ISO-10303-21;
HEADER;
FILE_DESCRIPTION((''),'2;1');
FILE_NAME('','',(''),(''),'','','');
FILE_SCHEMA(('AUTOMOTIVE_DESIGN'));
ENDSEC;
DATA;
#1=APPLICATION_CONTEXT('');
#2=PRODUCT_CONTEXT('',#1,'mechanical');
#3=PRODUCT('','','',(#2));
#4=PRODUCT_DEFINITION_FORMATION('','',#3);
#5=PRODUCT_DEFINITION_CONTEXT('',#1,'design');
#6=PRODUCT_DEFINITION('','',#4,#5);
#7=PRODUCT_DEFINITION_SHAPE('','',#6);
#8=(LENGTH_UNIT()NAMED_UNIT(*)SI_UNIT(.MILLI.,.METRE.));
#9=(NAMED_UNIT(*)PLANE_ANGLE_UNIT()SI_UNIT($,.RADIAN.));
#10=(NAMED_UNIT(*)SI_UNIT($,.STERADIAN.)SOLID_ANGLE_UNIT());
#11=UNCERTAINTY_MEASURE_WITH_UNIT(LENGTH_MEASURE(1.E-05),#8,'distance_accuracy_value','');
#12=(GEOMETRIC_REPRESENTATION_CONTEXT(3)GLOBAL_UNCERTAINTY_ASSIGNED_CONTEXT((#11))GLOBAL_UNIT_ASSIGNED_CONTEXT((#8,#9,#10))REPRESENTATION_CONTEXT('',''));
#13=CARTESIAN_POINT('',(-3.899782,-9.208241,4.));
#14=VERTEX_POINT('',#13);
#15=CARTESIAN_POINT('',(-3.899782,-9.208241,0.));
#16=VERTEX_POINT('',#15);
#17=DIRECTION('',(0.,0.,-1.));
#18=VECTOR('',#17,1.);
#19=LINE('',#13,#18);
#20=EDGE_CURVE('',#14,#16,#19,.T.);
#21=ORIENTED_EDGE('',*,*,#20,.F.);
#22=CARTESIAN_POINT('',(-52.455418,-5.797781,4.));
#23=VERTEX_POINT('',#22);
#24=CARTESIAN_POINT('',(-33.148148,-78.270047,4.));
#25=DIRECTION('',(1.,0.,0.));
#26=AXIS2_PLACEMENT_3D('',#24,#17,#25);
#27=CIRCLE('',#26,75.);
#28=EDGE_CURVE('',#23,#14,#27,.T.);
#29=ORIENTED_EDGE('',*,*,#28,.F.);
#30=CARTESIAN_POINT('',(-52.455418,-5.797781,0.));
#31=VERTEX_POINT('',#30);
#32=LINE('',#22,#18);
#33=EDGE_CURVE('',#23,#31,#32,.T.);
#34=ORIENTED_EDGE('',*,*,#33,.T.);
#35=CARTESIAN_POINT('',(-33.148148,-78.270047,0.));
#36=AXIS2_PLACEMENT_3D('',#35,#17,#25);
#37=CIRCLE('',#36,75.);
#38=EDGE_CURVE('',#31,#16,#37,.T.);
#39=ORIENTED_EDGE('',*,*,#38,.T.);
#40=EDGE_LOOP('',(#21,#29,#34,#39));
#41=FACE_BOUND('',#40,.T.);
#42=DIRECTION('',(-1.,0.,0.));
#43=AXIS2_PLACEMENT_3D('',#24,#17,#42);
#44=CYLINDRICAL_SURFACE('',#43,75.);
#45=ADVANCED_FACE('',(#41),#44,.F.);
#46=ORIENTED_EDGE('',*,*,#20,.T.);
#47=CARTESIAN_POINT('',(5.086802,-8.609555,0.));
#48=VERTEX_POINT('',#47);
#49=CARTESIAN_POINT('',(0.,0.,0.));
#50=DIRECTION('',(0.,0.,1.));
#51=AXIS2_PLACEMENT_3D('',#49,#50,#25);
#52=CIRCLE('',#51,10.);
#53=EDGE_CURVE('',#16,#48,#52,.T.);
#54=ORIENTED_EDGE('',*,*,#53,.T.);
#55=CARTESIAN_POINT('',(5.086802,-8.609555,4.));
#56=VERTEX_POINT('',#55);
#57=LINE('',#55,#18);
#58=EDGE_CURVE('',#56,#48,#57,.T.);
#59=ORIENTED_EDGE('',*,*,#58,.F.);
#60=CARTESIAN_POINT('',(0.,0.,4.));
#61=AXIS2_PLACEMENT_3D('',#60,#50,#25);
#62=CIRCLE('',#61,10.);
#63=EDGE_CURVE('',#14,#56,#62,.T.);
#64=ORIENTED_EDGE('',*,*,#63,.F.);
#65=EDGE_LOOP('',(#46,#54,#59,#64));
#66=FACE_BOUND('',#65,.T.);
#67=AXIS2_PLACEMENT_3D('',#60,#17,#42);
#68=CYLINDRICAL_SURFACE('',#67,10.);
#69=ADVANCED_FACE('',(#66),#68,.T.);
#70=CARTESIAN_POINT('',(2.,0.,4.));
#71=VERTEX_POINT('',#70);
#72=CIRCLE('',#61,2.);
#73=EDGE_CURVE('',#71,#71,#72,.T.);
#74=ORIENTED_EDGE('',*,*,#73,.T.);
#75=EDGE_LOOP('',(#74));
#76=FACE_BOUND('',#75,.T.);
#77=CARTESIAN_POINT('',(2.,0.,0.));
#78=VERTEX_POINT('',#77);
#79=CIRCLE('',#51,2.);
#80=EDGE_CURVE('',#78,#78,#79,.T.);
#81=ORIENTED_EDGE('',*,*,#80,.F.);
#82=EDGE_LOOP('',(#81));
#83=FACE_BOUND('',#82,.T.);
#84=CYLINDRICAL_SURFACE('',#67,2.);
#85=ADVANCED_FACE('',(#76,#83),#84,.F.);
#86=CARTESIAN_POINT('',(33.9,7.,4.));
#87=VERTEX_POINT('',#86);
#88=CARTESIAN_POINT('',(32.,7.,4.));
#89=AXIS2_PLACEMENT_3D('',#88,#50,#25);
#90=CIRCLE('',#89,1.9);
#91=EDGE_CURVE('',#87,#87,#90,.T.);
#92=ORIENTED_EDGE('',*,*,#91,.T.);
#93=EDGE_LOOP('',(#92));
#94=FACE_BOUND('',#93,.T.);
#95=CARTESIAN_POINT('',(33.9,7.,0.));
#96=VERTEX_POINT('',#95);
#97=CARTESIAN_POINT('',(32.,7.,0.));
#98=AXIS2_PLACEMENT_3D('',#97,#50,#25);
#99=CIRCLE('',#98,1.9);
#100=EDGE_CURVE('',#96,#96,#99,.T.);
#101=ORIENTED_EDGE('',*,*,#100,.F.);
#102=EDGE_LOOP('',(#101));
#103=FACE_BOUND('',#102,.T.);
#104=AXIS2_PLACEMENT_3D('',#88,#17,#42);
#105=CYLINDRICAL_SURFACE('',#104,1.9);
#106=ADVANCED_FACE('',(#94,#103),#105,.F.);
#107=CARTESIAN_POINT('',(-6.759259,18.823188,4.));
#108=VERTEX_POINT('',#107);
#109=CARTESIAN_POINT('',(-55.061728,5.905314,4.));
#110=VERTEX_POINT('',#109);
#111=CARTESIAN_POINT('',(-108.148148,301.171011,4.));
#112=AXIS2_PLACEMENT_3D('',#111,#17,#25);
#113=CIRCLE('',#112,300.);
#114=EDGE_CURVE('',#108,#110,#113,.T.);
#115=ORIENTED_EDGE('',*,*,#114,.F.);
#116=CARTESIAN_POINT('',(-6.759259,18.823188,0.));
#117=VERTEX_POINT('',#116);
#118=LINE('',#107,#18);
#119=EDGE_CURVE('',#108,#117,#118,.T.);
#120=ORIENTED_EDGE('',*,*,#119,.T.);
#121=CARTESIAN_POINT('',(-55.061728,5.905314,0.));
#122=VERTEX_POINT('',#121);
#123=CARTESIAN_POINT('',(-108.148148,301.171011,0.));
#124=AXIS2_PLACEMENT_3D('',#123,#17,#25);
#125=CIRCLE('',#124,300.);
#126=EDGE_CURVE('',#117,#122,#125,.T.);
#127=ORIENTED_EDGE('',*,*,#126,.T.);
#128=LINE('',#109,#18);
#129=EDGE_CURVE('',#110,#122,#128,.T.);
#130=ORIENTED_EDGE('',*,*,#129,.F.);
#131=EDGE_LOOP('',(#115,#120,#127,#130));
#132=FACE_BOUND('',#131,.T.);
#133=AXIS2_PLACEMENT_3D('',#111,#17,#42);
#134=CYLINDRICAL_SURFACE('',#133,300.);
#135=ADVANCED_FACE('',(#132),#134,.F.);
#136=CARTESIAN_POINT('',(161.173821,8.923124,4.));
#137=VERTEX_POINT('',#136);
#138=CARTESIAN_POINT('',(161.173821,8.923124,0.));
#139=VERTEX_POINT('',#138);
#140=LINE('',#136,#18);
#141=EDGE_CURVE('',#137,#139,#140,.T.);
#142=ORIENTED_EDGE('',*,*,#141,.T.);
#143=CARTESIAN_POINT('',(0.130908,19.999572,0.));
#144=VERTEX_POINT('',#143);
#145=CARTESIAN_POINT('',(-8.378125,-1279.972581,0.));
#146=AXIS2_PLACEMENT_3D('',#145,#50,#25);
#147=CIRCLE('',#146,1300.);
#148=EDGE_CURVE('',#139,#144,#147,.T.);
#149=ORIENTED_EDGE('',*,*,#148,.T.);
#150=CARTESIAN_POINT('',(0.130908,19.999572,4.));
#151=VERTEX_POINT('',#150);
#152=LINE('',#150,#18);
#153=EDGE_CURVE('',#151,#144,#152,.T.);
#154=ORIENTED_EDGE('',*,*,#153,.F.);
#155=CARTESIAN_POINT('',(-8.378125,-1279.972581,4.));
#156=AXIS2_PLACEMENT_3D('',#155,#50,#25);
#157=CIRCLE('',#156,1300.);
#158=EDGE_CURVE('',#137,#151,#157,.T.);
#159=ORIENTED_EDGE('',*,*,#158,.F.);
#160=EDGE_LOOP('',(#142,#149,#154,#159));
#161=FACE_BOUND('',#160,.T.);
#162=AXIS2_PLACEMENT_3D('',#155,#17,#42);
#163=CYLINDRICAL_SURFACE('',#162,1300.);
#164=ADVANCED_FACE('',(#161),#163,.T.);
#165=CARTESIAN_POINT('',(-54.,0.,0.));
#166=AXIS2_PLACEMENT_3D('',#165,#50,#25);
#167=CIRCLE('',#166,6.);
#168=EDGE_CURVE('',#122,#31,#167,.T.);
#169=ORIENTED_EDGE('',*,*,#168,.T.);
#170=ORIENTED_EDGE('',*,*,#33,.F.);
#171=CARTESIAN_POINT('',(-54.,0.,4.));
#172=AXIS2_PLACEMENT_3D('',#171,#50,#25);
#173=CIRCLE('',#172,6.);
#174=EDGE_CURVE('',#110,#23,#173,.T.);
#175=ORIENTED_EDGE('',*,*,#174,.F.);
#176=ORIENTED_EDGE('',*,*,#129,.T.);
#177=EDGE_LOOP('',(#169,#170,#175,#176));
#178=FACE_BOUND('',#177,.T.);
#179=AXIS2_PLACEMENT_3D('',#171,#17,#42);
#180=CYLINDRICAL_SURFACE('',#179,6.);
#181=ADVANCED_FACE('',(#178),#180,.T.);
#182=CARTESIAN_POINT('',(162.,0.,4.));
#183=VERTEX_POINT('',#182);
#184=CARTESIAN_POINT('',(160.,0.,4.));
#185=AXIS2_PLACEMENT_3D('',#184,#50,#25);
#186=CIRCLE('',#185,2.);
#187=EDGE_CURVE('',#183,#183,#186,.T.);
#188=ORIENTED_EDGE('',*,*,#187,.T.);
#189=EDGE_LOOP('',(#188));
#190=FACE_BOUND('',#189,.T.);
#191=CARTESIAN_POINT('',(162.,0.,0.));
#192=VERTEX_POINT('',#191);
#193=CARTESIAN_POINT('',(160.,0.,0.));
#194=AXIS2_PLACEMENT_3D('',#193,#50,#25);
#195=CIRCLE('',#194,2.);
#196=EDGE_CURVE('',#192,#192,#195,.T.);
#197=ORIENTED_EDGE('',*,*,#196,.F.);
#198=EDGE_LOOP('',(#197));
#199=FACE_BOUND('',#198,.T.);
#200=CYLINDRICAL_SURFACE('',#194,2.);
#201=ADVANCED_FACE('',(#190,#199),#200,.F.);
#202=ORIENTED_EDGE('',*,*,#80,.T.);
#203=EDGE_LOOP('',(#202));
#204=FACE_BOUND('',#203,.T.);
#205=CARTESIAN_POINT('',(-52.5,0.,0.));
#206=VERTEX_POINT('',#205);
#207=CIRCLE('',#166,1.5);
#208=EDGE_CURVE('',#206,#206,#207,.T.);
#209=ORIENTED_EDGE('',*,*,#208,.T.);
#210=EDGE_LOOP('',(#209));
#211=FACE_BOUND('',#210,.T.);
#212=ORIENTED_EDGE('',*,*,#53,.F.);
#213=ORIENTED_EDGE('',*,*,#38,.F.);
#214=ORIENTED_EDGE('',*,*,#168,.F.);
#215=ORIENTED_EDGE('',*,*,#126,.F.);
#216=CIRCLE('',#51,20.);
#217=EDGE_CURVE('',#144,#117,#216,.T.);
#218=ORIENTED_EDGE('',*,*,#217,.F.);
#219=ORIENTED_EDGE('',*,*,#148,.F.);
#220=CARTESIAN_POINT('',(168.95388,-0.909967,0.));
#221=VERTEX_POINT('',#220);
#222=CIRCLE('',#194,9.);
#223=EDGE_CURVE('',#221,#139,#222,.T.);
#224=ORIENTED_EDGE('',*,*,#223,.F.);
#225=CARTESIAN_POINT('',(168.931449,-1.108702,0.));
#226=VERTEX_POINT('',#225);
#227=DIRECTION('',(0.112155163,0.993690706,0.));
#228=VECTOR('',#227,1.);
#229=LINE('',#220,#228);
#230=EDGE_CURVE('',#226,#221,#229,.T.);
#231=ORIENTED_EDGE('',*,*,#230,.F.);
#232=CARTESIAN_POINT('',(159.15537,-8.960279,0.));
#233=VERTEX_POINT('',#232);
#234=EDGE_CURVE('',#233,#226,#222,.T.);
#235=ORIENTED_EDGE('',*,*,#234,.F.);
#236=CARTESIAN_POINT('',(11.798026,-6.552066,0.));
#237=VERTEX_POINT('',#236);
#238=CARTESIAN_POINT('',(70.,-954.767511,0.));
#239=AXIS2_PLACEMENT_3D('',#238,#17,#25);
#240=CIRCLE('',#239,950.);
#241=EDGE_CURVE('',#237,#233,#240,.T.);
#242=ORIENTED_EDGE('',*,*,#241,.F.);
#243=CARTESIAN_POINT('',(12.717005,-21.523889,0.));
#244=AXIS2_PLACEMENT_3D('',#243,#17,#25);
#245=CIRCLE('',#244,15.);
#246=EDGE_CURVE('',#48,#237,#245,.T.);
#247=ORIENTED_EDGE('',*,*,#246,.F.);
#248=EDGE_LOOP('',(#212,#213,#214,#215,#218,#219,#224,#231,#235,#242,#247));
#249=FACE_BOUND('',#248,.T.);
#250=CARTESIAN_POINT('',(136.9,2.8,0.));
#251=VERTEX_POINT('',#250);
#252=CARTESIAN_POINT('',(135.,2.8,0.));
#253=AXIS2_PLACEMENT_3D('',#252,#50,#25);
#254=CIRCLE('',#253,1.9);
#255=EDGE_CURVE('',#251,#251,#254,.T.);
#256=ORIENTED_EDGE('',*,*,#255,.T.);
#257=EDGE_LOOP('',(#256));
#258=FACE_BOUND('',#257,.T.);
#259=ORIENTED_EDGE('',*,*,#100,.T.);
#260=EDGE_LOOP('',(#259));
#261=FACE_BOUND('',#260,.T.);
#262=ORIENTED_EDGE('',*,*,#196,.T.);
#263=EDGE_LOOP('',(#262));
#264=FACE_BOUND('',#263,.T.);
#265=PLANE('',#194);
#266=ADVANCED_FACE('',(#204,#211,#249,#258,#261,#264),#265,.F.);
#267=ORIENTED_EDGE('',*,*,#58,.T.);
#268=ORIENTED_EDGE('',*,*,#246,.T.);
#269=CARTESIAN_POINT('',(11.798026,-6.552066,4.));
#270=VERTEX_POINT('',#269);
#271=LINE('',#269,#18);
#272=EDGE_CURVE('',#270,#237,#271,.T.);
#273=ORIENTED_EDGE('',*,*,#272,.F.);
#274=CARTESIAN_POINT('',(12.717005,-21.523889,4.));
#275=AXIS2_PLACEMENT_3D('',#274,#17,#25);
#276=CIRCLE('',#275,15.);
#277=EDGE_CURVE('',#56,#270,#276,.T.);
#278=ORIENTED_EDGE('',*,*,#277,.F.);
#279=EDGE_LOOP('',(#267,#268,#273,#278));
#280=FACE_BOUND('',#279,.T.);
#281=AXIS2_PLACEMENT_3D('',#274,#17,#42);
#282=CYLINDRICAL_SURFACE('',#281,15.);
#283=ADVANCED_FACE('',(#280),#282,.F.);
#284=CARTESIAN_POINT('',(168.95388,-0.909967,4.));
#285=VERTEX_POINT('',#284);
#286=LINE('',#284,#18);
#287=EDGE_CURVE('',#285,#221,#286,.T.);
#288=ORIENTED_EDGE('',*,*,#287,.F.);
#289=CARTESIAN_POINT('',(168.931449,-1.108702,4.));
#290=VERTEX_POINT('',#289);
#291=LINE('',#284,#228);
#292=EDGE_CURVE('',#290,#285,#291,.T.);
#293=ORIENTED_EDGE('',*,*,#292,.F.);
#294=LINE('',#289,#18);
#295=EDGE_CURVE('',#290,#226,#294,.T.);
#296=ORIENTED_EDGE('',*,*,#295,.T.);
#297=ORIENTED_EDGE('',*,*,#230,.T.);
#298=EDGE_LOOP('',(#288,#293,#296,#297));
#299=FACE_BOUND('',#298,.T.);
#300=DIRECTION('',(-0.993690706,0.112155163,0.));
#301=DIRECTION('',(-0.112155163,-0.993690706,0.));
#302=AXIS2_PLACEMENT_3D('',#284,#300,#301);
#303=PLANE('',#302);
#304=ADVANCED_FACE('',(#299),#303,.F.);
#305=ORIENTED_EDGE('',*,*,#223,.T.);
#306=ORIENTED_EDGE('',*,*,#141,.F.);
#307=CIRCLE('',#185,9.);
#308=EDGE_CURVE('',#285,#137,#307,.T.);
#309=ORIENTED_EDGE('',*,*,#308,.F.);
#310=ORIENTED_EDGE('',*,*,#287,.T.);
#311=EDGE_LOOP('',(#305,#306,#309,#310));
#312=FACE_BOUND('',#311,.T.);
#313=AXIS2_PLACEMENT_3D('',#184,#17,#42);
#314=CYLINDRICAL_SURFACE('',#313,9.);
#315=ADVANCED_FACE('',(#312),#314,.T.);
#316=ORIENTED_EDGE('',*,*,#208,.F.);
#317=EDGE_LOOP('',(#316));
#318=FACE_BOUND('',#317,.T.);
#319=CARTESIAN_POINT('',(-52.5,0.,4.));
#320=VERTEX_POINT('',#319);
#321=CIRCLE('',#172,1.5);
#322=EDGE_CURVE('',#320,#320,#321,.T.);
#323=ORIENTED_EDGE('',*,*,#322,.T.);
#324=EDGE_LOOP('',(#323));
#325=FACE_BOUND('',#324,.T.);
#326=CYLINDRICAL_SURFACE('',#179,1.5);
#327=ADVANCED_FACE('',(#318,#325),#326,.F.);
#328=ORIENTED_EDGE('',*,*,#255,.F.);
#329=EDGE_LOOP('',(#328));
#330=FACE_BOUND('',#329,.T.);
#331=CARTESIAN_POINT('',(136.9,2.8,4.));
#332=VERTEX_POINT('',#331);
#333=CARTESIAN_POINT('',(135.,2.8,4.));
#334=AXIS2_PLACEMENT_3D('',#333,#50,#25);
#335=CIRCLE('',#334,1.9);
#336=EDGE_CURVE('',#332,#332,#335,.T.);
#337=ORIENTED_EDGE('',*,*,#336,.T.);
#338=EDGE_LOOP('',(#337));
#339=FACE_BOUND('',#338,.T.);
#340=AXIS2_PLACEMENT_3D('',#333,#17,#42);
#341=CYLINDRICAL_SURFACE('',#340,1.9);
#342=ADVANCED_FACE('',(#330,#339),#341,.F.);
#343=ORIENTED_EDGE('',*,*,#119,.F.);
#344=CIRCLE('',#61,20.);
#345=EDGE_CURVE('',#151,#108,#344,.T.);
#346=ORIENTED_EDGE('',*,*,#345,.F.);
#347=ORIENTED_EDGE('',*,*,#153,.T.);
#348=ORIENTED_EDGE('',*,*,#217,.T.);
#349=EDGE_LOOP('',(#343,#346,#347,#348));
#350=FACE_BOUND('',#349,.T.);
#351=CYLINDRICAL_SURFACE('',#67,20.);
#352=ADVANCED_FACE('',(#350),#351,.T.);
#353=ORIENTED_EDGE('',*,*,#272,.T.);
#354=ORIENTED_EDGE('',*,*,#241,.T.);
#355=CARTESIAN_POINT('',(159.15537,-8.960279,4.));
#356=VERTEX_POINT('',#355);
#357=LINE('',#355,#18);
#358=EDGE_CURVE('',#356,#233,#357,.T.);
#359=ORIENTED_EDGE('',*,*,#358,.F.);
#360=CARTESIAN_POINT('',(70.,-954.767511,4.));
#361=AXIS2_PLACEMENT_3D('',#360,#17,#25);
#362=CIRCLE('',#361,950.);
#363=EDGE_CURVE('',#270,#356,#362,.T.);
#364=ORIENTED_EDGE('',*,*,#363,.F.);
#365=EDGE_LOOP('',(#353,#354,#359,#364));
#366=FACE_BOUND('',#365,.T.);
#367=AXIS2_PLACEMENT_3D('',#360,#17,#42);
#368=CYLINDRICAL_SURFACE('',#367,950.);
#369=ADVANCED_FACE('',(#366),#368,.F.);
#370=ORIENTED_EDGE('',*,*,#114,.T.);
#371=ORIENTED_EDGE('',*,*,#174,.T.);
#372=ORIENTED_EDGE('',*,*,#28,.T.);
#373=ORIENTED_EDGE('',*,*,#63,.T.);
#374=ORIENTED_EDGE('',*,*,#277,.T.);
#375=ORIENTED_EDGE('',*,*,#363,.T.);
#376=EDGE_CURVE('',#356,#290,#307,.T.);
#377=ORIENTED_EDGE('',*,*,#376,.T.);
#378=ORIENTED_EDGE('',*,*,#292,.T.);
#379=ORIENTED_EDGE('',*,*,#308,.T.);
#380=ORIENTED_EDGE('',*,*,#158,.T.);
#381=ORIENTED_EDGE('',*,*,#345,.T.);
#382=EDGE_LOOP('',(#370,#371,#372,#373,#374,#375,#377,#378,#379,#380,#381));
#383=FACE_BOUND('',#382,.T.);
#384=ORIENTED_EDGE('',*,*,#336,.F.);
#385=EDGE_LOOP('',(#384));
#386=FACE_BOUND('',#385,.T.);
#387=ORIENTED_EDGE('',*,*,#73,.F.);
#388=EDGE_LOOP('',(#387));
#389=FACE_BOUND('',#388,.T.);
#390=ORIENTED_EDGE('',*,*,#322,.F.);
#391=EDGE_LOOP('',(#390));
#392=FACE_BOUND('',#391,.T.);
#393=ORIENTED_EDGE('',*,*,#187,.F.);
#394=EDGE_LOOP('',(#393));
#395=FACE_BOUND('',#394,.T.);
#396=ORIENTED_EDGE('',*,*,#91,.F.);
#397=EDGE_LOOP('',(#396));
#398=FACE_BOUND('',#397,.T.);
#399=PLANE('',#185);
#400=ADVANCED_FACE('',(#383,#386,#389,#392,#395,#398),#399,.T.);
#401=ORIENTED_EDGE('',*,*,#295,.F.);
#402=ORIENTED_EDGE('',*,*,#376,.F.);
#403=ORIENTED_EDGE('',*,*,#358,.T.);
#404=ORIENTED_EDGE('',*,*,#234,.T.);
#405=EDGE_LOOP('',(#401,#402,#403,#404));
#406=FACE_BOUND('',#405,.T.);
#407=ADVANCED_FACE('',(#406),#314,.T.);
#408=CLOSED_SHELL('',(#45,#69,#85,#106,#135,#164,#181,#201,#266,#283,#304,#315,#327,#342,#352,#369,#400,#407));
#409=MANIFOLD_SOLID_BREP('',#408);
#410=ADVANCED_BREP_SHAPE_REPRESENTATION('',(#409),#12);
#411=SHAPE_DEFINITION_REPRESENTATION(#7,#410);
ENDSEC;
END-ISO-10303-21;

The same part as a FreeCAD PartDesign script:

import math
import FreeCAD as App
import Part
import Sketcher
Q = App.Units.Quantity

doc = App.newDocument("Part")
body = doc.addObject("PartDesign::Body", "Body")

# Sketch on XY plane
sketch1 = doc.addObject("Sketcher::SketchObject", "Sketch")
body.addObject(sketch1)
sketch1.AttachmentSupport = (doc.XY_Plane, [""])
sketch1.MapMode = "FlatFace"
sketch1.addGeometry(Part.LineSegment(App.Vector(168.931449, -1.108702, 0), App.Vector(168.95388, -0.909967, 0)), False)
sketch1.addGeometry(Part.ArcOfCircle(Part.Circle(App.Vector(160, 0, 0), App.Vector(0, 0, 1), 9), math.radians(-5.802943), math.radians(82.505872)), False)
sketch1.addGeometry(Part.ArcOfCircle(Part.Circle(App.Vector(-8.378125, -1279.97258, 0), App.Vector(0, 0, 1), 1300), math.radians(82.505872), math.radians(89.624973)), False)
sketch1.addGeometry(Part.ArcOfCircle(Part.Circle(App.Vector(0, 0, 0), App.Vector(0, 0, 1), 20), math.radians(89.624973), math.radians(109.752815)), False)
sketch1.addGeometry(Part.ArcOfCircle(Part.Circle(App.Vector(-108.148148, 301.171011, 0), App.Vector(0, 0, 1), 300), math.radians(-79.807568), math.radians(-70.247185)), False)
sketch1.addGeometry(Part.ArcOfCircle(Part.Circle(App.Vector(-54, 0, 0), App.Vector(0, 0, 1), 6), math.radians(100.192432), math.radians(284.917638)), False)
sketch1.addGeometry(Part.ArcOfCircle(Part.Circle(App.Vector(-33.148148, -78.270047, 0), App.Vector(0, 0, 1), 75), math.radians(67.046856), math.radians(104.917638)), False)
sketch1.addGeometry(Part.ArcOfCircle(Part.Circle(App.Vector(0, 0, 0), App.Vector(0, 0, 1), 10), math.radians(-112.953144), math.radians(-59.424042)), False)
sketch1.addGeometry(Part.ArcOfCircle(Part.Circle(App.Vector(12.717005, -21.523889, 0), App.Vector(0, 0, 1), 15), math.radians(93.512439), math.radians(120.575958)), False)
sketch1.addGeometry(Part.ArcOfCircle(Part.Circle(App.Vector(70, -954.767511, 0), App.Vector(0, 0, 1), 950), math.radians(84.614995), math.radians(93.512439)), False)
sketch1.addGeometry(Part.ArcOfCircle(Part.Circle(App.Vector(160, 0, 0), App.Vector(0, 0, 1), 9), math.radians(-95.385005), math.radians(-7.076189)), False)
sketch1.addGeometry(Part.Circle(App.Vector(160, 0, 0), App.Vector(0, 0, 1), 1.5), False)
sketch1.addGeometry(Part.Circle(App.Vector(135, 2.8, 0), App.Vector(0, 0, 1), 1.9), False)
sketch1.addGeometry(Part.Circle(App.Vector(0, 0, 0), App.Vector(0, 0, 1), 2), False)
sketch1.addGeometry(Part.Circle(App.Vector(-54, 0, 0), App.Vector(0, 0, 1), 1.5), False)
sketch1.addGeometry(Part.Circle(App.Vector(32, 7, 0), App.Vector(0, 0, 1), 1.9), False)
sketch1.addConstraint(Sketcher.Constraint("Coincident", 0, 2, 1, 1))
sketch1.addConstraint(Sketcher.Constraint("Tangent", 1, 2, 2, 1))
sketch1.addConstraint(Sketcher.Constraint("Tangent", 2, 2, 3, 1))
sketch1.addConstraint(Sketcher.Constraint("Tangent", 3, 2, 4, 2))
sketch1.addConstraint(Sketcher.Constraint("Tangent", 4, 1, 5, 1))
sketch1.addConstraint(Sketcher.Constraint("Tangent", 5, 2, 6, 2))
sketch1.addConstraint(Sketcher.Constraint("Tangent", 6, 1, 7, 1))
sketch1.addConstraint(Sketcher.Constraint("Tangent", 7, 2, 8, 2))
sketch1.addConstraint(Sketcher.Constraint("Tangent", 8, 1, 9, 2))
sketch1.addConstraint(Sketcher.Constraint("Tangent", 9, 1, 10, 1))
sketch1.addConstraint(Sketcher.Constraint("Coincident", 10, 2, 0, 1))
sketch1.addConstraint(Sketcher.Constraint("Coincident", 3, 3, -1, 1))
sketch1.addConstraint(Sketcher.Constraint("Coincident", 7, 3, -1, 1))
sketch1.addConstraint(Sketcher.Constraint("Coincident", 13, 3, -1, 1))
sketch1.addConstraint(Sketcher.Constraint("Coincident", 10, 3, 1, 3))
sketch1.addConstraint(Sketcher.Constraint("Coincident", 11, 3, 1, 3))
sketch1.addConstraint(Sketcher.Constraint("Coincident", 14, 3, 5, 3))
sketch1.addConstraint(Sketcher.Constraint("Equal", 1, 10))
sketch1.addConstraint(Sketcher.Constraint("Equal", 11, 14))
sketch1.addConstraint(Sketcher.Constraint("Equal", 12, 15))
sketch1.addConstraint(Sketcher.Constraint("PointOnObject", 1, 3, -1))
sketch1.addConstraint(Sketcher.Constraint("PointOnObject", 5, 3, -1))
sketch1.addConstraint(Sketcher.Constraint("Diameter", 11, Q("3 mm")))
sketch1.addConstraint(Sketcher.Constraint("Diameter", 13, Q("4 mm")))
sketch1.addConstraint(Sketcher.Constraint("Radius", 1, Q("9 mm")))
sketch1.addConstraint(Sketcher.Constraint("Radius", 2, Q("1300 mm")))
sketch1.addConstraint(Sketcher.Constraint("Radius", 3, Q("20 mm")))
sketch1.addConstraint(Sketcher.Constraint("Radius", 4, Q("300 mm")))
sketch1.addConstraint(Sketcher.Constraint("Radius", 5, Q("6 mm")))
sketch1.addConstraint(Sketcher.Constraint("Radius", 6, Q("75 mm")))
sketch1.addConstraint(Sketcher.Constraint("Radius", 7, Q("10 mm")))
sketch1.addConstraint(Sketcher.Constraint("Radius", 8, Q("15 mm")))
sketch1.addConstraint(Sketcher.Constraint("Radius", 9, Q("950 mm")))
sketch1.addConstraint(Sketcher.Constraint("Diameter", 12, Q("3.8 mm")))
sketch1.addConstraint(Sketcher.Constraint("DistanceX", -1, 1, 1, 3, Q("160 mm")))
sketch1.addConstraint(Sketcher.Constraint("DistanceX", 5, 3, -1, 1, Q("54 mm")))
sketch1.addConstraint(Sketcher.Constraint("DistanceX", -1, 1, 9, 3, Q("70 mm")))
sketch1.addConstraint(Sketcher.Constraint("DistanceX", -1, 1, 12, 3, Q("135 mm")))
sketch1.addConstraint(Sketcher.Constraint("DistanceX", -1, 1, 15, 3, Q("32 mm")))
sketch1.addConstraint(Sketcher.Constraint("DistanceY", -1, 1, 15, 3, Q("7 mm")))
sketch1.addConstraint(Sketcher.Constraint("DistanceY", -1, 1, 12, 3, Q("2.8 mm")))
sketch1.addConstraint(Sketcher.Constraint("DistanceY", 10, 2, -1, 1, Q("1.108702 mm")))
sketch1.addConstraint(Sketcher.Constraint("DistanceX", -1, 1, 0, 2, Q("168.95388 mm")))
pad1 = doc.addObject("PartDesign::Pad", "Pad")
body.addObject(pad1)
pad1.Profile = sketch1
pad1.Length = 4

# Sketch on XY plane
sketch2 = doc.addObject("Sketcher::SketchObject", "Sketch001")
body.addObject(sketch2)
sketch2.AttachmentSupport = (doc.XY_Plane, [""])
sketch2.MapMode = "FlatFace"
sketch2.AttachmentOffset = App.Placement(App.Vector(0, 0, 4), App.Rotation())
sketch2.addGeometry(Part.Circle(App.Vector(160, 0, 0), App.Vector(0, 0, 1), 2), False)
sketch2.addConstraint(Sketcher.Constraint("PointOnObject", 0, 3, -1))
sketch2.addConstraint(Sketcher.Constraint("Diameter", 0, Q("4 mm")))
sketch2.addConstraint(Sketcher.Constraint("DistanceX", -1, 1, 0, 3, Q("160 mm")))
pocket1 = doc.addObject("PartDesign::Pocket", "Pocket")
body.addObject(pocket1)
pocket1.Profile = sketch2
pocket1.Type = "ThroughAll"

doc.recompute()
